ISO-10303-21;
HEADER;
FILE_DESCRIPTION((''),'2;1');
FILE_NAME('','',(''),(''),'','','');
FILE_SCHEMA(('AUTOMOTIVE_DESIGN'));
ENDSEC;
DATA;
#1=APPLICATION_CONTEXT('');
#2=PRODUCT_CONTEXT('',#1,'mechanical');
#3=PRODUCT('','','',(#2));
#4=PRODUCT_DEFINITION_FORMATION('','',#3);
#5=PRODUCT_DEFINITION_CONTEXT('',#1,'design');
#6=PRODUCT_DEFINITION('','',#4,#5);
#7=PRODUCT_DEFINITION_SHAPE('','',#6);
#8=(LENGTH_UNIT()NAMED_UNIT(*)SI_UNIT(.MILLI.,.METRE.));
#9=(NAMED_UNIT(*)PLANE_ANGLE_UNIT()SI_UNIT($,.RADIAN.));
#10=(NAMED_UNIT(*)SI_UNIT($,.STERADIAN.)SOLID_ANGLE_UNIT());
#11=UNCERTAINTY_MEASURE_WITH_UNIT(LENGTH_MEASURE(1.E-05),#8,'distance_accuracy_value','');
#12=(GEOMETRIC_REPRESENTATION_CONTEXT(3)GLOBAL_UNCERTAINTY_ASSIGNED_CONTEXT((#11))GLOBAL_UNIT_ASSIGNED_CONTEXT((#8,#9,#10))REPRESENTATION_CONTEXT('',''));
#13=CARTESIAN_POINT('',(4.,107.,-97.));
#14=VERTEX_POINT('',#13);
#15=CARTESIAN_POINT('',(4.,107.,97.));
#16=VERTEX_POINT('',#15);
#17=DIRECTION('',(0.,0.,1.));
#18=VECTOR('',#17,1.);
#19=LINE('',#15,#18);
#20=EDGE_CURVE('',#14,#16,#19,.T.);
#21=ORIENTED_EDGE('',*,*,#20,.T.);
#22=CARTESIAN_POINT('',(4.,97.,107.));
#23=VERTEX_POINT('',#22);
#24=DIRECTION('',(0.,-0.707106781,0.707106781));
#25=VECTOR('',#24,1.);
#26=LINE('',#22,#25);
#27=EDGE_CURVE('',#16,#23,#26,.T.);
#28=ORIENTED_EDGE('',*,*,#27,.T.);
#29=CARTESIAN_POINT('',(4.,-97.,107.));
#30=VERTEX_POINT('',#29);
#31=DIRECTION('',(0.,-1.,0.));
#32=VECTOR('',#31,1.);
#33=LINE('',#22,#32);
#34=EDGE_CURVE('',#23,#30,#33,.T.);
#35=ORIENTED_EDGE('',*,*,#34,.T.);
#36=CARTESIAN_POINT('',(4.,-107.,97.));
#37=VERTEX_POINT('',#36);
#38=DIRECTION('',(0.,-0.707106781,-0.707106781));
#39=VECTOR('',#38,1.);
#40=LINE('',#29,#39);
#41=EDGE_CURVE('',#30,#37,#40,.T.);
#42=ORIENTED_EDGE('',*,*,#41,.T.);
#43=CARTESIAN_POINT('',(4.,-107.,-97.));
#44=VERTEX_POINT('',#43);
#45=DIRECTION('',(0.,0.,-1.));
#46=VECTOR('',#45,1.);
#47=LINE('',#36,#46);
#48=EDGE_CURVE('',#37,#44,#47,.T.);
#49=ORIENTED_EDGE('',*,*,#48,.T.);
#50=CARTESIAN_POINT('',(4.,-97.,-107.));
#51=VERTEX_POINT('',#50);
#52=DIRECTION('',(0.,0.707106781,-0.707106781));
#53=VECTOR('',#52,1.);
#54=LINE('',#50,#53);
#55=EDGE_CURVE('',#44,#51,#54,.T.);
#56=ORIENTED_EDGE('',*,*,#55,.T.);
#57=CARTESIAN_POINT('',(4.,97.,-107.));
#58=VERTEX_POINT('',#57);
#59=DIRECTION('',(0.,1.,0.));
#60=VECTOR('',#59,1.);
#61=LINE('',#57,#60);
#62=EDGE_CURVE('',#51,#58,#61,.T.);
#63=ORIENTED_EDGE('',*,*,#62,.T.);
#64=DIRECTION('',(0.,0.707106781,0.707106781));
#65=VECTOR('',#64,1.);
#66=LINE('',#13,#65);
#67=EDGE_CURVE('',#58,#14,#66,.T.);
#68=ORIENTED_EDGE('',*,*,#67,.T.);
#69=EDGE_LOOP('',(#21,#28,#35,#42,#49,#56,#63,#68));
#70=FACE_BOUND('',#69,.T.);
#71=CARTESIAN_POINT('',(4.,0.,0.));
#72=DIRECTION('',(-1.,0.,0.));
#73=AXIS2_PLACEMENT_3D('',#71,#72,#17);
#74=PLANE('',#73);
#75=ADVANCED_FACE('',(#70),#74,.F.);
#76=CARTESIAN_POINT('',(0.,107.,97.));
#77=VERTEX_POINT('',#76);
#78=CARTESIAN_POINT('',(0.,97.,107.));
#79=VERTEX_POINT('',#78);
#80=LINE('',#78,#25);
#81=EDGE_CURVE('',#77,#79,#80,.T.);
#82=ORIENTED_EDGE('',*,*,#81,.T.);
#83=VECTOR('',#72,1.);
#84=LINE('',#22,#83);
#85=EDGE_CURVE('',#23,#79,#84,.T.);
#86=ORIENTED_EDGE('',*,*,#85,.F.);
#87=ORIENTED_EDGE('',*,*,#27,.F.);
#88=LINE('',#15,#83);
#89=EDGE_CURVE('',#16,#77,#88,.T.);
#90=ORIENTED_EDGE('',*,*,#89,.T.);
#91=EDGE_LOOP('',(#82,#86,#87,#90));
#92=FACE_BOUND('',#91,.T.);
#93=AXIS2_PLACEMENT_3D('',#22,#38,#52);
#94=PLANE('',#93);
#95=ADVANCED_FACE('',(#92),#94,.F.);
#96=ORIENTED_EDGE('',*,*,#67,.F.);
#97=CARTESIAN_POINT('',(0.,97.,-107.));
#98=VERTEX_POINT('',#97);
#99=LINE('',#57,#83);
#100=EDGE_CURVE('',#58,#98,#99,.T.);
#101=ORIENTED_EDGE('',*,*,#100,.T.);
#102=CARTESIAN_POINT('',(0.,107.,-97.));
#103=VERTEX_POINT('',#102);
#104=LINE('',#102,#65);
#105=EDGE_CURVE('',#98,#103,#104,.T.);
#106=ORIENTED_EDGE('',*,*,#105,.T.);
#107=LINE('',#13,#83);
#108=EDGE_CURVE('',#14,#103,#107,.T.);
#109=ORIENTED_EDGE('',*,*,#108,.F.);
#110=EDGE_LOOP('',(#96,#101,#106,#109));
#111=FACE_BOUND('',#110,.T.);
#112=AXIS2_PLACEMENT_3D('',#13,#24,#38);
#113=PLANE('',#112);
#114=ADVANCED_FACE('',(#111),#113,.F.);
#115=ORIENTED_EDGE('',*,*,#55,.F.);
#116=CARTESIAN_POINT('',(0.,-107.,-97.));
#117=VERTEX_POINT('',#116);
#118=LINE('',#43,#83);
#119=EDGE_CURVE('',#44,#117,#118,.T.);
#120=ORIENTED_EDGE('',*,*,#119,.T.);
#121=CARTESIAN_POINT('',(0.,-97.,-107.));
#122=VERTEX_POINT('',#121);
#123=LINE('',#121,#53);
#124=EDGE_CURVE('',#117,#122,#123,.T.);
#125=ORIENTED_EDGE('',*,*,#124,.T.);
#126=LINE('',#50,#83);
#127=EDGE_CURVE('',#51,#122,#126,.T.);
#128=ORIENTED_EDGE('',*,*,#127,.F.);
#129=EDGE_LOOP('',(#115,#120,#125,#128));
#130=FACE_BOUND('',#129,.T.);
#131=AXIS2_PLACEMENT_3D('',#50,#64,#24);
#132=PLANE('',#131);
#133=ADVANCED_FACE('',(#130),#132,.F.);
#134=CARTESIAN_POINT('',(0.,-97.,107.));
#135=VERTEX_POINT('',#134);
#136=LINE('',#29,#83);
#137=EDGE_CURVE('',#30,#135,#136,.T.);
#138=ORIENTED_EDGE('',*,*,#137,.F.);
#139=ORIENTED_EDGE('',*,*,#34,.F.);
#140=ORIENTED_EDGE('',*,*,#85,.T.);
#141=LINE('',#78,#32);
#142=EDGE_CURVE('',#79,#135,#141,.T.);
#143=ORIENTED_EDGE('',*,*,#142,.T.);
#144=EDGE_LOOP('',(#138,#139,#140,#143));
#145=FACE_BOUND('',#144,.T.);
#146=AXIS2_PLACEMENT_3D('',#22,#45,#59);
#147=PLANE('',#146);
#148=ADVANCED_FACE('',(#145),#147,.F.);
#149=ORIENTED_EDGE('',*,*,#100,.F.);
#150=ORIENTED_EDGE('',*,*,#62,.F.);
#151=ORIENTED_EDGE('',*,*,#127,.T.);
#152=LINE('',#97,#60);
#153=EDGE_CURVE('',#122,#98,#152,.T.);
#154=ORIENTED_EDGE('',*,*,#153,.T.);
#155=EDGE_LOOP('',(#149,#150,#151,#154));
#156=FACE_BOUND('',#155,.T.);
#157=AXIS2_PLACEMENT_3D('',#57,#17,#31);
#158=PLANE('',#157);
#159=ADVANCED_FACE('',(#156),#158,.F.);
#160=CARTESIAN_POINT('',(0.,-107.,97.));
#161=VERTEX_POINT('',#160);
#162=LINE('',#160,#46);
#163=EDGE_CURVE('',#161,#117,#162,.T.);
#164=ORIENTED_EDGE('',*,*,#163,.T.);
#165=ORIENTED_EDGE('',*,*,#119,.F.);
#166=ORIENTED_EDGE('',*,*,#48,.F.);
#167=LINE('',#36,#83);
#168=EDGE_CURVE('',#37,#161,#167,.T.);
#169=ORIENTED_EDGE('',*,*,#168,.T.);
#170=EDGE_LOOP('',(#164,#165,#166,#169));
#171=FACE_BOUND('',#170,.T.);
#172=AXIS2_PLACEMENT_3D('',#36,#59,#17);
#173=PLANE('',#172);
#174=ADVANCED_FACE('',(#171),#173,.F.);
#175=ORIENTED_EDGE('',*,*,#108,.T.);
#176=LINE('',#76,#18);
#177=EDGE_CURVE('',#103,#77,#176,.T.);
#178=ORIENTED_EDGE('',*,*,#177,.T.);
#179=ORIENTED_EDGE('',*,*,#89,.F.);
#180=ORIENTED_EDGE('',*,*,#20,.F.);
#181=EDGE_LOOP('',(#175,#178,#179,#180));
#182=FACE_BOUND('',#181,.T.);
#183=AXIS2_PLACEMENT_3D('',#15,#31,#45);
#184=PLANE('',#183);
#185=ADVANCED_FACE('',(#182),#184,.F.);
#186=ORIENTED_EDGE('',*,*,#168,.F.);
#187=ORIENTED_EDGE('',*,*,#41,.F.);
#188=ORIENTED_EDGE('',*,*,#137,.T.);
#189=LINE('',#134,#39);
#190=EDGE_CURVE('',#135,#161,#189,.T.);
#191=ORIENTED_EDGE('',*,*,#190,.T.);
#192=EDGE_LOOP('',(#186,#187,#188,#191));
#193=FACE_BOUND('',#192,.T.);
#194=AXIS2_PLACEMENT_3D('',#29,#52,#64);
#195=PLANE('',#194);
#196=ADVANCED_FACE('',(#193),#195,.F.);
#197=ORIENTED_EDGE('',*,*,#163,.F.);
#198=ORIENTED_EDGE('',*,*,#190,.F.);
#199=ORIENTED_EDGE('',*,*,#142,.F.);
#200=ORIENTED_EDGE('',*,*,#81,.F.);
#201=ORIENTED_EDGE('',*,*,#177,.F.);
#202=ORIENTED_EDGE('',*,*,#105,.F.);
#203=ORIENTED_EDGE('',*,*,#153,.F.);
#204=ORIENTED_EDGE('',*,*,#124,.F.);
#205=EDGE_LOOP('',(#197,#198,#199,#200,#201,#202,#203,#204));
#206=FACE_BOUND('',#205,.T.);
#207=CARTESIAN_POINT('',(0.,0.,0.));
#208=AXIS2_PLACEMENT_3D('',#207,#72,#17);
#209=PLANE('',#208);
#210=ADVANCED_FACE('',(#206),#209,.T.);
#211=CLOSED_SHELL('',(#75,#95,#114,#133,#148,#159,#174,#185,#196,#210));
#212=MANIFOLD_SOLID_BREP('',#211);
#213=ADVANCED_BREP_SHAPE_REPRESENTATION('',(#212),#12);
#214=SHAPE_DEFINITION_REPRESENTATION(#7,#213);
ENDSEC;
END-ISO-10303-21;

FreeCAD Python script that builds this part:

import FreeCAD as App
import Part
import Sketcher

doc = App.newDocument("Part")
params = doc.addObject("Spreadsheet::Sheet", "Params")
for row, (alias, value) in enumerate([
    ("sketch1_width", "194 mm"),
    ("pad1_length", "4 mm"),
], start=1):
    params.set(f"A{row}", alias)
    params.set(f"B{row}", "=" + value)
    params.setAlias(f"B{row}", alias)

body = doc.addObject("PartDesign::Body", "Body")

# Sketch on YZ plane
sketch1 = doc.addObject("Sketcher::SketchObject", "Sketch")
body.addObject(sketch1)
sketch1.AttachmentSupport = (doc.YZ_Plane, [""])
sketch1.MapMode = "FlatFace"
sketch1.addGeometry([
    Part.LineSegment(App.Vector(107, 97, 0), App.Vector(97, 107, 0)),  # 0
    Part.LineSegment(App.Vector(97, 107, 0), App.Vector(-97, 107, 0)),  # 1
    Part.LineSegment(App.Vector(-97, 107, 0), App.Vector(-107, 97, 0)),  # 2
    Part.LineSegment(App.Vector(-107, 97, 0), App.Vector(-107, -97, 0)),  # 3
    Part.LineSegment(App.Vector(-107, -97, 0), App.Vector(-97, -107, 0)),  # 4
    Part.LineSegment(App.Vector(-97, -107, 0), App.Vector(97, -107, 0)),  # 5
    Part.LineSegment(App.Vector(97, -107, 0), App.Vector(107, -97, 0)),  # 6
    Part.LineSegment(App.Vector(107, -97, 0), App.Vector(107, 97, 0)),  # 7
], False)
sketch1.addConstraint([
    Sketcher.Constraint("Coincident", 0, 2, 1, 1),
    Sketcher.Constraint("Coincident", 1, 2, 2, 1),
    Sketcher.Constraint("Coincident", 2, 2, 3, 1),
    Sketcher.Constraint("Coincident", 3, 2, 4, 1),
    Sketcher.Constraint("Coincident", 4, 2, 5, 1),
    Sketcher.Constraint("Coincident", 5, 2, 6, 1),
    Sketcher.Constraint("Coincident", 6, 2, 7, 1),
    Sketcher.Constraint("Coincident", 7, 2, 0, 1),
    Sketcher.Constraint("Horizontal", 1),
    Sketcher.Constraint("Vertical", 3),
    Sketcher.Constraint("Horizontal", 5),
    Sketcher.Constraint("Vertical", 7),
    Sketcher.Constraint("Symmetric", 0, 2, 4, 2, -1, 1),
    Sketcher.Constraint("Symmetric", 2, 2, 6, 2, -1, 1),
    Sketcher.Constraint("Perpendicular", 0, 2),
    Sketcher.Constraint("Perpendicular", 2, 4),
    Sketcher.Constraint("Perpendicular", 4, 6),
    Sketcher.Constraint("Horizontal", 3, 2, 6, 2),
    Sketcher.Constraint("Vertical", 1, 2, 4, 2),
    Sketcher.Constraint("Equal", 5, 3),
    Sketcher.Constraint("DistanceX", 1, 2, 1, 1, 194.0),
    Sketcher.Constraint("DistanceY", -1, 1, 0, 2, 107.0),
])
sketch1.setExpression("Constraints[20]", "Params.sketch1_width")
pad1 = doc.addObject("PartDesign::Pad", "Pad")
body.addObject(pad1)
pad1.Profile = sketch1
pad1.setExpression("Length", "Params.pad1_length")

doc.recompute()
